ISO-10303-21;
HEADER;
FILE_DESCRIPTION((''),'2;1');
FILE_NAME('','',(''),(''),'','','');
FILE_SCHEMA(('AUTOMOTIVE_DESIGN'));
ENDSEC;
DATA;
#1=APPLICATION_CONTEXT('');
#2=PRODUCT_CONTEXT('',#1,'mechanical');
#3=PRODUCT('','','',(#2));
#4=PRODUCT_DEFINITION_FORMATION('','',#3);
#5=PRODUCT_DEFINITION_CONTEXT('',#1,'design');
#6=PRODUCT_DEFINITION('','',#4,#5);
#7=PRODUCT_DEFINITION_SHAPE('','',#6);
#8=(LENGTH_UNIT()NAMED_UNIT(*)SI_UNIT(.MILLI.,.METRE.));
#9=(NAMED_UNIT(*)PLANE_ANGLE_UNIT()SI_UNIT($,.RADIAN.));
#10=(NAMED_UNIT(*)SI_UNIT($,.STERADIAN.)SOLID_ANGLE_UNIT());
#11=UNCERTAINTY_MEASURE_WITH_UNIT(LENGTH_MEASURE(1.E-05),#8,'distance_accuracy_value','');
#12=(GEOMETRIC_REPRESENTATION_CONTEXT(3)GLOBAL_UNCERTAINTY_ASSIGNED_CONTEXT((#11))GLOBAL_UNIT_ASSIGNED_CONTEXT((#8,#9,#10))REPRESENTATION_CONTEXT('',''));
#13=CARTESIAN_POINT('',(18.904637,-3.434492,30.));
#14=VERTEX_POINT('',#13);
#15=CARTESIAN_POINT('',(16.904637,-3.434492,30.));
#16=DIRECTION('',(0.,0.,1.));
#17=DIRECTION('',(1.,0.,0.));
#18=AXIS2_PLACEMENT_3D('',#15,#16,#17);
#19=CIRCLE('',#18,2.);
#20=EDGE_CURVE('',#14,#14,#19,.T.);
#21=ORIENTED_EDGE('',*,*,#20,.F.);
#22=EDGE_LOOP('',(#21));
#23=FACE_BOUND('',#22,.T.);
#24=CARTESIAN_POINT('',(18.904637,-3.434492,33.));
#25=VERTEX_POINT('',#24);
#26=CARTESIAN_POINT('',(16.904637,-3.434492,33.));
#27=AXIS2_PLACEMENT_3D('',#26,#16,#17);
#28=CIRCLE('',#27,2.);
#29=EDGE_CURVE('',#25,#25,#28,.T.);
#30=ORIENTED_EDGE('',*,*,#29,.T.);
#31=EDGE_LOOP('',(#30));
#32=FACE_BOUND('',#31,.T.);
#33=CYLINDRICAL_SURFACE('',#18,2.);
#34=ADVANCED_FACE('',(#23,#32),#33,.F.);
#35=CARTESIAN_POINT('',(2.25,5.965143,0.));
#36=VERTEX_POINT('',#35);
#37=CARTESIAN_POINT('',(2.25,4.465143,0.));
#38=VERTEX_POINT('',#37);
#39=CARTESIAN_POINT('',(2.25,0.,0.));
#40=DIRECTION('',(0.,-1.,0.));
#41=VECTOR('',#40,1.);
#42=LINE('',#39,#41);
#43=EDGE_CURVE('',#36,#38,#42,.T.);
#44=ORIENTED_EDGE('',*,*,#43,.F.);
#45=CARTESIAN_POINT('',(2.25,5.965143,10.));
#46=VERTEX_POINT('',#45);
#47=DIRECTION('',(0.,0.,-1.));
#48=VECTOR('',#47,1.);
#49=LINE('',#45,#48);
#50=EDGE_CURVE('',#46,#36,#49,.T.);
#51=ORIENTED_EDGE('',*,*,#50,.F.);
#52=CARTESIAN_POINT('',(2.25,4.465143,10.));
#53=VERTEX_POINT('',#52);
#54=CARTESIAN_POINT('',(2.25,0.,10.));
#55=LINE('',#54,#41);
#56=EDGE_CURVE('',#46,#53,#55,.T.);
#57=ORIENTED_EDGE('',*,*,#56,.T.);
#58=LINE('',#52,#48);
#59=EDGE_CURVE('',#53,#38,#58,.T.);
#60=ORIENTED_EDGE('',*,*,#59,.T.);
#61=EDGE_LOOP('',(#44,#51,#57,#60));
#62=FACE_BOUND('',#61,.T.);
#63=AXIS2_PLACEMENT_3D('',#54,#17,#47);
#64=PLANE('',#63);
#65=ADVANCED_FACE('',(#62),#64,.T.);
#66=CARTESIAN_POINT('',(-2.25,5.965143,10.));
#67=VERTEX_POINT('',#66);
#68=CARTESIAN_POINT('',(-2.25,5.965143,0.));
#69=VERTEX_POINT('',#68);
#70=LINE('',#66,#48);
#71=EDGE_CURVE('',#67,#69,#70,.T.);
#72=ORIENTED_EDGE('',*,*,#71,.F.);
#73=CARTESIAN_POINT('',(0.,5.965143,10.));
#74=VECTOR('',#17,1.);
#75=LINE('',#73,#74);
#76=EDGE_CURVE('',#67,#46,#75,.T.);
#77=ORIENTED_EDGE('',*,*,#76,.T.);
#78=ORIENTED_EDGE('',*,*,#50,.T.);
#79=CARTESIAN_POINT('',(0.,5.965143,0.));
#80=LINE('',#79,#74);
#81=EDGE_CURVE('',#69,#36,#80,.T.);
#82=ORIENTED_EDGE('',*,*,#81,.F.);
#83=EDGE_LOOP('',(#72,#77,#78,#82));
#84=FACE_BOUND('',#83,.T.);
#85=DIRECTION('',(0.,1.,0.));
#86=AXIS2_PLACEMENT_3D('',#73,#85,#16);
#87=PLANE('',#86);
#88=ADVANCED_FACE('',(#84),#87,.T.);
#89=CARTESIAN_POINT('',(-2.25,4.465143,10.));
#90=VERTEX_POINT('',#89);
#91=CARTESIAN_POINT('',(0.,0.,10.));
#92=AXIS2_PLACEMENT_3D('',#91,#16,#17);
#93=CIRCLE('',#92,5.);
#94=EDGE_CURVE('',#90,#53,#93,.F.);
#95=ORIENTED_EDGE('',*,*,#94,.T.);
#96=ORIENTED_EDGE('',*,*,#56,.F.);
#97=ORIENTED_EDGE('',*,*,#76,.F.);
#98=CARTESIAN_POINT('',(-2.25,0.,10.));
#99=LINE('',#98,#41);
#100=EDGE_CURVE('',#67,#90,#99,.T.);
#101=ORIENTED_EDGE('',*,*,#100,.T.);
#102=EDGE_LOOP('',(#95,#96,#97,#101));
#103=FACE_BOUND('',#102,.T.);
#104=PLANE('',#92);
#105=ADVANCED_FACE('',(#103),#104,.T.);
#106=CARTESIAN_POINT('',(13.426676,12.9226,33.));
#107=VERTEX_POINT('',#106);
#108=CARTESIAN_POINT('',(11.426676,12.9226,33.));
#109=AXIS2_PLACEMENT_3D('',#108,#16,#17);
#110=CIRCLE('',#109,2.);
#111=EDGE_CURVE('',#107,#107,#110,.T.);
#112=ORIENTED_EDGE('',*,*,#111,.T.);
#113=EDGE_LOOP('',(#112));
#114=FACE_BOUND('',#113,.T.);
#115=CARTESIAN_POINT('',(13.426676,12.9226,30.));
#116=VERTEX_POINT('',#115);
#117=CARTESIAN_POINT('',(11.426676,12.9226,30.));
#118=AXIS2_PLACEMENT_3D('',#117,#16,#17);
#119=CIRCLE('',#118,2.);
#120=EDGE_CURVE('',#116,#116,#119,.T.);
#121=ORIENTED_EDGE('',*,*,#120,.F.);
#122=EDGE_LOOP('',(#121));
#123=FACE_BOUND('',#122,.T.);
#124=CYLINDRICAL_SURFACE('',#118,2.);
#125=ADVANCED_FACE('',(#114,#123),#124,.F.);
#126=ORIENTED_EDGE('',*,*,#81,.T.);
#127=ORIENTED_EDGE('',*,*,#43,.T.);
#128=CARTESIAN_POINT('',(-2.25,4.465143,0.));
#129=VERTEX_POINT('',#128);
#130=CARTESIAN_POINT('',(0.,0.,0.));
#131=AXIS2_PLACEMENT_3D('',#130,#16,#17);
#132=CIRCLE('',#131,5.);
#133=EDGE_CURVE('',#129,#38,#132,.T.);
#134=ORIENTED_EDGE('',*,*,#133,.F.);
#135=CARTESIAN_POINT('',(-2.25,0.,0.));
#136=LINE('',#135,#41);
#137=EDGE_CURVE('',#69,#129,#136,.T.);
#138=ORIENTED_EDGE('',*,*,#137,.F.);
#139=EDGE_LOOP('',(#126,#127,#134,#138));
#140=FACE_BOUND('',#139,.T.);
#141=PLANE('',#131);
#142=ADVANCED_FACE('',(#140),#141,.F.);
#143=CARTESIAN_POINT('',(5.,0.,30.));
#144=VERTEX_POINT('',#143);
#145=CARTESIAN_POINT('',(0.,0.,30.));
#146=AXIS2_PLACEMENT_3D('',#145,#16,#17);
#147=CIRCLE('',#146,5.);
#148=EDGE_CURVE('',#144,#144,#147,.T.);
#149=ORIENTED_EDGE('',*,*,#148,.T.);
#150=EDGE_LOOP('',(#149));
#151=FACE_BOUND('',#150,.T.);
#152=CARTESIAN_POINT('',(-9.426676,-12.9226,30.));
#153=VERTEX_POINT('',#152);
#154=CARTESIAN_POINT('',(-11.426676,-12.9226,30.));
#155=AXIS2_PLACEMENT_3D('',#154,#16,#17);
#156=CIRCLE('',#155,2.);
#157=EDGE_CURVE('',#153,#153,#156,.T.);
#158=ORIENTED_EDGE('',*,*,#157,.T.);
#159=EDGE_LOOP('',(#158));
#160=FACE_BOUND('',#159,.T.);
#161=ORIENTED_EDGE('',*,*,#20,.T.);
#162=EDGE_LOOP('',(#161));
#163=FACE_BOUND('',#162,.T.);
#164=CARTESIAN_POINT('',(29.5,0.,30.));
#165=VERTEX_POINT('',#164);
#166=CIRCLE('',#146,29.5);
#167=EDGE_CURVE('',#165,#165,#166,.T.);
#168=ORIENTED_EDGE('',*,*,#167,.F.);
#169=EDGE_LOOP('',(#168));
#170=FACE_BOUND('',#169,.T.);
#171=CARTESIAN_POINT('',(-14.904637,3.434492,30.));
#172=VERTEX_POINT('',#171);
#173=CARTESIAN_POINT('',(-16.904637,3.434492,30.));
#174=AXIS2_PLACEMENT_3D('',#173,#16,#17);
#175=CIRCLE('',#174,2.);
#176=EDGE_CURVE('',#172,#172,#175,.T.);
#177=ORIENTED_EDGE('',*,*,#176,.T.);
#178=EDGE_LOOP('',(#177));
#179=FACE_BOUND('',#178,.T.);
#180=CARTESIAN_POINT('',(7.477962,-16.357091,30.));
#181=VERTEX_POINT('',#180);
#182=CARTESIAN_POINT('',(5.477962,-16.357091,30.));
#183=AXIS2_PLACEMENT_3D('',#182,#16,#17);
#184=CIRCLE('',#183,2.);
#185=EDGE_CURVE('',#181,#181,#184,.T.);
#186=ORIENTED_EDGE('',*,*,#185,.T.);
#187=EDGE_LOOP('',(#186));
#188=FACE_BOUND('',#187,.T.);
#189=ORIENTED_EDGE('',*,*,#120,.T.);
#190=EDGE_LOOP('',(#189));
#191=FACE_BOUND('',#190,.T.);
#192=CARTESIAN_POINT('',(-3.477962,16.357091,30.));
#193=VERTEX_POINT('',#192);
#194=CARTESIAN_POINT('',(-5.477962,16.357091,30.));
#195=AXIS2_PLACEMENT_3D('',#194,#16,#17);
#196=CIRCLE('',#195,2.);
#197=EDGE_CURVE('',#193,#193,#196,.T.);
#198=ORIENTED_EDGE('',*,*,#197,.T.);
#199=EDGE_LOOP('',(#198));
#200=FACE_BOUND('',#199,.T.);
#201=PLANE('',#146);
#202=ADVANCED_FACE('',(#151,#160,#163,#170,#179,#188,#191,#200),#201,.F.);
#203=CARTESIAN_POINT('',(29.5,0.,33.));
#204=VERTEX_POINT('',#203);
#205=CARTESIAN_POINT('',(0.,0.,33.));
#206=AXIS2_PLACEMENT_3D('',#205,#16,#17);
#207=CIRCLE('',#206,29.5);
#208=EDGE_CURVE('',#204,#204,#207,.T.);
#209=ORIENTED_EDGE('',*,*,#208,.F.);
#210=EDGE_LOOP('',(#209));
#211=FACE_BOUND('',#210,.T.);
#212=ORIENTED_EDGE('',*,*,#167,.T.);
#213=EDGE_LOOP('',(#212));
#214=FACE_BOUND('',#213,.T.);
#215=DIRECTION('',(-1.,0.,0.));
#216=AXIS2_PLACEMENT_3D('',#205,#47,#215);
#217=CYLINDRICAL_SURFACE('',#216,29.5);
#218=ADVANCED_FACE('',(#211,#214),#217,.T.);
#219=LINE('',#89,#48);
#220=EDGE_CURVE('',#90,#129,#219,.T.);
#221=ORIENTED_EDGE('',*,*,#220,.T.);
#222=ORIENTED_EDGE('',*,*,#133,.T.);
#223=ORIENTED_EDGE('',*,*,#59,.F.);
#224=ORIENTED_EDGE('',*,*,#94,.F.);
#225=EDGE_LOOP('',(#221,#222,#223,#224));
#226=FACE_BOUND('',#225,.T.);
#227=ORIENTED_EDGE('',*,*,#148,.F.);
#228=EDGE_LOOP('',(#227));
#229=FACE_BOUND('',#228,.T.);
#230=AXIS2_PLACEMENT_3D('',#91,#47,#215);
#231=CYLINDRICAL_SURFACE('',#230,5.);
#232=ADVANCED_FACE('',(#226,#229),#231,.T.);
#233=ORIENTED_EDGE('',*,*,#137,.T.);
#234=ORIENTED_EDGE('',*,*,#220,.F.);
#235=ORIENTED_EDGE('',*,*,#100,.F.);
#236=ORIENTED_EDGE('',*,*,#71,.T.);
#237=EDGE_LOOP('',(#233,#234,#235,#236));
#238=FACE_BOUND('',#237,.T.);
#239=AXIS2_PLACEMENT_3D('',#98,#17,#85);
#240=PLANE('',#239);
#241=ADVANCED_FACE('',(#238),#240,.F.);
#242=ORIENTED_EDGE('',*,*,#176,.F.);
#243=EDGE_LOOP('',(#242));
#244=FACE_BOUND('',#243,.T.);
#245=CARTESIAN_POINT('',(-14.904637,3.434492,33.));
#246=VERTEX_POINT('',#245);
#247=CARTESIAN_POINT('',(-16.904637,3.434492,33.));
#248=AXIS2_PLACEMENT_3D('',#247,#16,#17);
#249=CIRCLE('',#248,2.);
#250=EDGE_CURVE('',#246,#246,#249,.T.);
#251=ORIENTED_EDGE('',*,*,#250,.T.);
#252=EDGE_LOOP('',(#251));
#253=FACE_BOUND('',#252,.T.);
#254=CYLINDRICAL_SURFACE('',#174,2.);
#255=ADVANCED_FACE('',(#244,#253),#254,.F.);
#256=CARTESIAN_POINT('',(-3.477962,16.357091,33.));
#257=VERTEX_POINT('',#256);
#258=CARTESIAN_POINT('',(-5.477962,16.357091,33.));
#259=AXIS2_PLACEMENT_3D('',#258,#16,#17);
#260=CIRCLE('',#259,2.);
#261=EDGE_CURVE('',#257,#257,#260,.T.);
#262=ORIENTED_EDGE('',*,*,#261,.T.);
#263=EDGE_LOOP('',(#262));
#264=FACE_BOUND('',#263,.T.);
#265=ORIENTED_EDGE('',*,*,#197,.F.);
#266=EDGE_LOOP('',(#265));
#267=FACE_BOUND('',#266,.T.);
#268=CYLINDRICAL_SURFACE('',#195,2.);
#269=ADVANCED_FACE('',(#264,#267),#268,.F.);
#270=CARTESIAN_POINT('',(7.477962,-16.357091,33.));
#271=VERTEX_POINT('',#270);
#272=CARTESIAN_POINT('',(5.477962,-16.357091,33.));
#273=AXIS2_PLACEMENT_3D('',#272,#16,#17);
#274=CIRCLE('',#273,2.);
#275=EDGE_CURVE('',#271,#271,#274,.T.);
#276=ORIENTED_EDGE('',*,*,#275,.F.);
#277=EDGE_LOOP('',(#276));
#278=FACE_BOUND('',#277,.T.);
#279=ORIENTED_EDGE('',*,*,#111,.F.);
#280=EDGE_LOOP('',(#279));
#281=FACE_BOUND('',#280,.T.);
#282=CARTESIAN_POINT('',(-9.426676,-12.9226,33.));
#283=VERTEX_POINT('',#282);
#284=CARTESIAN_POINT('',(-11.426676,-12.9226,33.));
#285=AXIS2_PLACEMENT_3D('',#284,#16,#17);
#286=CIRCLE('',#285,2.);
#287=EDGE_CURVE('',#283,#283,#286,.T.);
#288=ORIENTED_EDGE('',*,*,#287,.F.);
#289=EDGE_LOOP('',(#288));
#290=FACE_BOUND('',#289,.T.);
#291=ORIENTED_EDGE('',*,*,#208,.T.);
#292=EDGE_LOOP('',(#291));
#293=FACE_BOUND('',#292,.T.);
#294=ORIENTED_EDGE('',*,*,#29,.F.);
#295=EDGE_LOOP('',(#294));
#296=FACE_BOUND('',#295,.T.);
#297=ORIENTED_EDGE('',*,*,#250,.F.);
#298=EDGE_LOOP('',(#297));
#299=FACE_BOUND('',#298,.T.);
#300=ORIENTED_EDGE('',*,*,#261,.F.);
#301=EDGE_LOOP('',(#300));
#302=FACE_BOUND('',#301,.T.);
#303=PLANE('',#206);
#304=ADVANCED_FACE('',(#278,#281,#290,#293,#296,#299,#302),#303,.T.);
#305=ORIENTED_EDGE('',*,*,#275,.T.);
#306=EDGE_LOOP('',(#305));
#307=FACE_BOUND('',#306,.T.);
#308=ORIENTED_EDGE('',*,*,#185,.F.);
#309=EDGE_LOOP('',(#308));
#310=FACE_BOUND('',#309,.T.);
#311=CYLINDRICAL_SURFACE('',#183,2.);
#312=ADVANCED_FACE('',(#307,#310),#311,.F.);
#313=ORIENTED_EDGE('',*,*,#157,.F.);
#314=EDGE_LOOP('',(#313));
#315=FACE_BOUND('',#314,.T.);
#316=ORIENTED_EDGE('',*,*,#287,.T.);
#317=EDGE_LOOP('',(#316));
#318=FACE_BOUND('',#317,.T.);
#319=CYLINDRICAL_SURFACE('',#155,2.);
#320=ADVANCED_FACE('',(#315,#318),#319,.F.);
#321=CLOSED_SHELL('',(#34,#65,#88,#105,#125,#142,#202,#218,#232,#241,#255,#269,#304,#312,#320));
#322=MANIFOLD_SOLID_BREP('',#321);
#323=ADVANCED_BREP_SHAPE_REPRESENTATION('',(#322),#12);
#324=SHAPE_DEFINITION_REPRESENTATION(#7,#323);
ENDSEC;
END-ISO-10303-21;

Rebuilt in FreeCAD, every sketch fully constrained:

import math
import FreeCAD as App
import Part
import Sketcher
from FreeCAD import Vector

doc = App.newDocument("Part")
body = doc.addObject("PartDesign::Body", "Body")

sketch1 = body.newObject("Sketcher::SketchObject", "Sketch")
sketch1.AttachmentSupport = (doc.getObject("XY_Plane"), [""])
sketch1.MapMode = "FlatFace"
sketch1.addGeometry([
    Part.LineSegment(Vector(2.25, 4.465143, 0), Vector(2.25, 5.965143, 0)),
    Part.LineSegment(Vector(2.25, 5.965143, 0), Vector(-2.25, 5.965143, 0)),
    Part.LineSegment(Vector(-2.25, 5.965143, 0), Vector(-2.25, 4.465143, 0)),
    Part.ArcOfCircle(Part.Circle(Vector(0, 0, 0), Vector(0, 0, 1), 5), math.radians(116.743684), math.radians(423.256316)),
], False)
sketch1.addConstraint([
    Sketcher.Constraint("Coincident", 0, 2, 1, 1),
    Sketcher.Constraint("Coincident", 1, 2, 2, 1),
    Sketcher.Constraint("Coincident", 2, 2, 3, 1),
    Sketcher.Constraint("Coincident", 3, 2, 0, 1),
    Sketcher.Constraint("Vertical", 0),
    Sketcher.Constraint("Horizontal", 1),
    Sketcher.Constraint("Vertical", 2),
    Sketcher.Constraint("Coincident", 3, 3, -1, 1),
    Sketcher.Constraint("Horizontal", 2, 2, 3, 2),
    Sketcher.Constraint("Radius", 3, 5.0),
    Sketcher.Constraint("DistanceX", 1, 2, 1, 1, 4.5),
    Sketcher.Constraint("DistanceY", 0, 1, 0, 2, 1.5),
])
pad1 = body.newObject("PartDesign::Pad", "Pad")
pad1.Profile = sketch1
pad1.Length = 10

sketch2 = body.newObject("Sketcher::SketchObject", "Sketch001")
sketch2.AttachmentSupport = (doc.getObject("XY_Plane"), [""])
sketch2.MapMode = "FlatFace"
sketch2.addGeometry(Part.Circle(Vector(0, 0, 0), Vector(0, 0, 1), 5), False)
sketch2.addConstraint([
    Sketcher.Constraint("Coincident", 0, 3, -1, 1),
    Sketcher.Constraint("Diameter", 0, 10.0),
])
pad2 = body.newObject("PartDesign::Pad", "Pad001")
pad2.Profile = sketch2
pad2.Length = 30

sketch3 = body.newObject("Sketcher::SketchObject", "Sketch002")
sketch3.AttachmentSupport = (doc.getObject("XY_Plane"), [""])
sketch3.MapMode = "FlatFace"
sketch3.AttachmentOffset = App.Placement(Vector(0, 0, 30), App.Rotation())
sketch3.addGeometry(Part.Circle(Vector(0, 0, 0), Vector(0, 0, 1), 29.5), False)
sketch3.addConstraint([
    Sketcher.Constraint("Coincident", 0, 3, -1, 1),
    Sketcher.Constraint("Diameter", 0, 59.0),
])
pad3 = body.newObject("PartDesign::Pad", "Pad002")
pad3.Profile = sketch3
pad3.Length = 3

sketch4 = body.newObject("Sketcher::SketchObject", "Sketch003")
sketch4.AttachmentSupport = (doc.getObject("XY_Plane"), [""])
sketch4.MapMode = "FlatFace"
sketch4.AttachmentOffset = App.Placement(Vector(0, 0, 33), App.Rotation())
sketch4.addGeometry([
    Part.Circle(Vector(-5.477962, 16.357091, 0), Vector(0, 0, 1), 2),
    Part.Circle(Vector(11.426676, 12.9226, 0), Vector(0, 0, 1), 2),
    Part.Circle(Vector(16.904637, -3.434492, 0), Vector(0, 0, 1), 2),
    Part.Circle(Vector(5.477962, -16.357091, 0), Vector(0, 0, 1), 2),
    Part.Circle(Vector(-11.426676, -12.9226, 0), Vector(0, 0, 1), 2),
    Part.Circle(Vector(-16.904637, 3.434492, 0), Vector(0, 0, 1), 2),
], False)
sketch4.addConstraint([
    Sketcher.Constraint("Equal", 0, 1),
    Sketcher.Constraint("Equal", 1, 2),
    Sketcher.Constraint("Equal", 2, 3),
    Sketcher.Constraint("Equal", 3, 4),
    Sketcher.Constraint("Equal", 4, 5),
    Sketcher.Constraint("Symmetric", 0, 3, 3, 3, -1, 1),
    Sketcher.Constraint("Symmetric", 1, 3, 4, 3, -1, 1),
    Sketcher.Constraint("Symmetric", 2, 3, 5, 3, -1, 1),
    Sketcher.Constraint("Diameter", 0, 4.0),
    Sketcher.Constraint("DistanceY", -1, 1, 1, 3, 12.9226),
    Sketcher.Constraint("DistanceX", 0, 3, 2, 3, 22.382599),
    Sketcher.Constraint("DistanceY", 3, 3, 2, 3, 12.9226),
    Sketcher.Constraint("DistanceX", 0, 3, -1, 1, 5.477962),
    Sketcher.Constraint("DistanceY", -1, 1, 0, 3, 16.357091),
    Sketcher.Constraint("DistanceX", 1, 3, 2, 3, 5.477962),
])
pocket1 = body.newObject("PartDesign::Pocket", "Pocket")
pocket1.Profile = sketch4
pocket1.Length = 3

doc.recompute()
